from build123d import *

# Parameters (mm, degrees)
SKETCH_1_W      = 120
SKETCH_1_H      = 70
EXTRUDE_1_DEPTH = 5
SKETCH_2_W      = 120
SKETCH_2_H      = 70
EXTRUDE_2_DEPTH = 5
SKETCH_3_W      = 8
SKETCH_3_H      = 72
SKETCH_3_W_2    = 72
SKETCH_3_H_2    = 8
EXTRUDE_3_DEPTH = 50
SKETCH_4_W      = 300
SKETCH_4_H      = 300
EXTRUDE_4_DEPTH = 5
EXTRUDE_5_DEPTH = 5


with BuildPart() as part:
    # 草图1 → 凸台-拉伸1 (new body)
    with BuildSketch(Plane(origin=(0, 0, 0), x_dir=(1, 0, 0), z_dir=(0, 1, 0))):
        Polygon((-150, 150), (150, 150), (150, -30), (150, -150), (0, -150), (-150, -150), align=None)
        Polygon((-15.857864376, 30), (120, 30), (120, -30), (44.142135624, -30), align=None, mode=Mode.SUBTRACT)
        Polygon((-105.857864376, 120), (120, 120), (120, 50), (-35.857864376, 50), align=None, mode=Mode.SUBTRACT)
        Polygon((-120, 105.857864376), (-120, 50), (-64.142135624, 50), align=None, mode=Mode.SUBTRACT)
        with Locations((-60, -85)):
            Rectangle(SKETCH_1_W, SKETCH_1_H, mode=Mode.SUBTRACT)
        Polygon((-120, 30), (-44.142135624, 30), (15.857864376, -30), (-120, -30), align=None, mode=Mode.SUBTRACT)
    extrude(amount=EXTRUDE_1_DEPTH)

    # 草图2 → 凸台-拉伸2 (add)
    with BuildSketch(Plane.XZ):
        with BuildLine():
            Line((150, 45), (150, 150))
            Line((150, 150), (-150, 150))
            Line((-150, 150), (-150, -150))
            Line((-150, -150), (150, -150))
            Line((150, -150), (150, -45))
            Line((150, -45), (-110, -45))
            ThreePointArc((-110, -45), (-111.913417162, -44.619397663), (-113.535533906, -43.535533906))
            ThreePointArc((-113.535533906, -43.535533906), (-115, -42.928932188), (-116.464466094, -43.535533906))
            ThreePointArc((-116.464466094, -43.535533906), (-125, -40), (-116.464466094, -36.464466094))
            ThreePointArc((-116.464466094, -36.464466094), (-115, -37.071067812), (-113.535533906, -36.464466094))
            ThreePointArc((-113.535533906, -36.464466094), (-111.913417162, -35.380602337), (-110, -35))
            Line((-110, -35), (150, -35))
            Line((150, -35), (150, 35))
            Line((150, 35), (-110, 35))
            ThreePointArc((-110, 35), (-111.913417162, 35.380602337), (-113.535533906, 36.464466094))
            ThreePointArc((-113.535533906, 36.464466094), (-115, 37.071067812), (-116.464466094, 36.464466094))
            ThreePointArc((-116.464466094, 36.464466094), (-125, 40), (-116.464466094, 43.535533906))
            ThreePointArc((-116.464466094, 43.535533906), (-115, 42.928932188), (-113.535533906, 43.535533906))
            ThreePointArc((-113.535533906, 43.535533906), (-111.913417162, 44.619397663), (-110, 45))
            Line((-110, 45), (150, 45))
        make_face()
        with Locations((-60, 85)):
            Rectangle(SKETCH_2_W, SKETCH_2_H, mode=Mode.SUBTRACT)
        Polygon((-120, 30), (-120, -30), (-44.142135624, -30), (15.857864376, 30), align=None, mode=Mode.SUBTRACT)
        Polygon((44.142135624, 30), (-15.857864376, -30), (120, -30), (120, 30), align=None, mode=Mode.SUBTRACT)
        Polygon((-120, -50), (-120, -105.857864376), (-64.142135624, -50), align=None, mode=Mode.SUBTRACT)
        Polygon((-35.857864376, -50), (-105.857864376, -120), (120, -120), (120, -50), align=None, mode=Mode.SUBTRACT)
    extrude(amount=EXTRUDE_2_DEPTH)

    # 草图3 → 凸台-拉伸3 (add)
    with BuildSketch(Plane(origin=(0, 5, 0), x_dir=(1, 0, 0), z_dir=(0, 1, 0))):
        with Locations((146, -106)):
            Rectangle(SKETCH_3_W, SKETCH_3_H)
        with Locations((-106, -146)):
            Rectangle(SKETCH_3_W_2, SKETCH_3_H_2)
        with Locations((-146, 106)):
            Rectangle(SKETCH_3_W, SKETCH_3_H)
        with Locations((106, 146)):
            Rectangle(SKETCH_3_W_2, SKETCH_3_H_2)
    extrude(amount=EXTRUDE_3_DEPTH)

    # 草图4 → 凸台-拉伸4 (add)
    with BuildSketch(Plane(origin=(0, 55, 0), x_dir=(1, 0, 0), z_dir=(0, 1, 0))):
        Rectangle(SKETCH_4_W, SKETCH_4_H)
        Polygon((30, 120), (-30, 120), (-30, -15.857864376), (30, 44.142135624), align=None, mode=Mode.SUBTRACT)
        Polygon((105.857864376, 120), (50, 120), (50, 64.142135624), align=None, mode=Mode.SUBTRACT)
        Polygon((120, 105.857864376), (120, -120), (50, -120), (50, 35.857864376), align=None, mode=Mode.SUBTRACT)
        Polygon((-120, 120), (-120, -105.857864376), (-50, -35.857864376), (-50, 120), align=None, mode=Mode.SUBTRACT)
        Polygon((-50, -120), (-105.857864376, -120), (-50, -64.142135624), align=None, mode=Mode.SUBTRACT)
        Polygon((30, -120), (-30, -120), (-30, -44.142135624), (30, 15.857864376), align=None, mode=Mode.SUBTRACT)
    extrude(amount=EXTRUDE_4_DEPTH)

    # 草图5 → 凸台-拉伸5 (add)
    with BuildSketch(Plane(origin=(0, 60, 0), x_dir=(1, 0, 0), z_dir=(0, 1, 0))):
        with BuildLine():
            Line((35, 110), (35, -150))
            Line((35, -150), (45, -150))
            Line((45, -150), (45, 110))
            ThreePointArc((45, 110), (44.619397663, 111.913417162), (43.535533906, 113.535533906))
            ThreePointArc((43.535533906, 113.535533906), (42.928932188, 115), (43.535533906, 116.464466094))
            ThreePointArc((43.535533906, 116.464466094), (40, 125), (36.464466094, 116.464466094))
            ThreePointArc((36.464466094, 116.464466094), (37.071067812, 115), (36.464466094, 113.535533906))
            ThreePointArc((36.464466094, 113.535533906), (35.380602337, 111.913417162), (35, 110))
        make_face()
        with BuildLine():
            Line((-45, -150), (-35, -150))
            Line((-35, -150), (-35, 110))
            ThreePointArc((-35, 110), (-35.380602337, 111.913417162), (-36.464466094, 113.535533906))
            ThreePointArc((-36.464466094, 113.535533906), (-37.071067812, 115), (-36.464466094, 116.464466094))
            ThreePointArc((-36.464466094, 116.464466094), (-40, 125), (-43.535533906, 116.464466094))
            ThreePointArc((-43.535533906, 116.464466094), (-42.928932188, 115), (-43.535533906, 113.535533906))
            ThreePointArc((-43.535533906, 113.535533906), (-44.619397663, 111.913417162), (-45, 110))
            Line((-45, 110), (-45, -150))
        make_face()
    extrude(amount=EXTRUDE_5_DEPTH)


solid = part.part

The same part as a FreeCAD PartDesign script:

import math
import FreeCAD as App
import Part
import Sketcher
from FreeCAD import Vector
Q = App.Units.Quantity

doc = App.newDocument("Part")
body = doc.addObject("PartDesign::Body", "Body")

# Sketch on XZ plane
sketch1 = doc.addObject("Sketcher::SketchObject", "Sketch")
body.addObject(sketch1)
sketch1.AttachmentSupport = (doc.XZ_Plane, [""])
sketch1.MapMode = "FlatFace"
sketch1.addGeometry(Part.LineSegment(Vector(150, -150, 0), Vector(-150, -150, 0)), False)
sketch1.addGeometry(Part.LineSegment(Vector(-150, -150, 0), Vector(-150, 150, 0)), False)
sketch1.addGeometry(Part.LineSegment(Vector(-150, 150, 0), Vector(150, 150, 0)), False)
sketch1.addGeometry(Part.LineSegment(Vector(150, 150, 0), Vector(150, -150, 0)), False)
sketch1.addGeometry(Part.LineSegment(Vector(-120, 120, 0), Vector(-120, 50, 0)), False)
sketch1.addGeometry(Part.LineSegment(Vector(-120, 50, 0), Vector(0, 50, 0)), False)
sketch1.addGeometry(Part.LineSegment(Vector(0, 50, 0), Vector(0, 120, 0)), False)
sketch1.addGeometry(Part.LineSegment(Vector(0, 120, 0), Vector(-120, 120, 0)), False)
sketch1.addGeometry(Part.LineSegment(Vector(-15.857864, -30, 0), Vector(120, -30, 0)), False)
sketch1.addGeometry(Part.LineSegment(Vector(120, -30, 0), Vector(120, 30, 0)), False)
sketch1.addGeometry(Part.LineSegment(Vector(120, 30, 0), Vector(44.142136, 30, 0)), False)
sketch1.addGeometry(Part.LineSegment(Vector(44.142136, 30, 0), Vector(-15.857864, -30, 0)), False)
sketch1.addGeometry(Part.LineSegment(Vector(-105.857864, -120, 0), Vector(120, -120, 0)), False)
sketch1.addGeometry(Part.LineSegment(Vector(120, -120, 0), Vector(120, -50, 0)), False)
sketch1.addGeometry(Part.LineSegment(Vector(120, -50, 0), Vector(-35.857864, -50, 0)), False)
sketch1.addGeometry(Part.LineSegment(Vector(-35.857864, -50, 0), Vector(-105.857864, -120, 0)), False)
sketch1.addGeometry(Part.LineSegment(Vector(-120, -30, 0), Vector(-44.142136, -30, 0)), False)
sketch1.addGeometry(Part.LineSegment(Vector(-44.142136, -30, 0), Vector(15.857864, 30, 0)), False)
sketch1.addGeometry(Part.LineSegment(Vector(15.857864, 30, 0), Vector(-120, 30, 0)), False)
sketch1.addGeometry(Part.LineSegment(Vector(-120, 30, 0), Vector(-120, -30, 0)), False)
sketch1.addGeometry(Part.LineSegment(Vector(-120, -105.857864, 0), Vector(-64.142136, -50, 0)), False)
sketch1.addGeometry(Part.LineSegment(Vector(-64.142136, -50, 0), Vector(-120, -50, 0)), False)
sketch1.addGeometry(Part.LineSegment(Vector(-120, -50, 0), Vector(-120, -105.857864, 0)), False)
sketch1.addConstraint(Sketcher.Constraint("Coincident", 0, 2, 1, 1))
sketch1.addConstraint(Sketcher.Constraint("Coincident", 1, 2, 2, 1))
sketch1.addConstraint(Sketcher.Constraint("Coincident", 2, 2, 3, 1))
sketch1.addConstraint(Sketcher.Constraint("Coincident", 3, 2, 0, 1))
sketch1.addConstraint(Sketcher.Constraint("Coincident", 4, 2, 5, 1))
sketch1.addConstraint(Sketcher.Constraint("Coincident", 5, 2, 6, 1))
sketch1.addConstraint(Sketcher.Constraint("Coincident", 6, 2, 7, 1))
sketch1.addConstraint(Sketcher.Constraint("Coincident", 7, 2, 4, 1))
sketch1.addConstraint(Sketcher.Constraint("Coincident", 8, 2, 9, 1))
sketch1.addConstraint(Sketcher.Constraint("Coincident", 9, 2, 10, 1))
sketch1.addConstraint(Sketcher.Constraint("Coincident", 10, 2, 11, 1))
sketch1.addConstraint(Sketcher.Constraint("Coincident", 11, 2, 8, 1))
sketch1.addConstraint(Sketcher.Constraint("Coincident", 12, 2, 13, 1))
sketch1.addConstraint(Sketcher.Constraint("Coincident", 13, 2, 14, 1))
sketch1.addConstraint(Sketcher.Constraint("Coincident", 14, 2, 15, 1))
sketch1.addConstraint(Sketcher.Constraint("Coincident", 15, 2, 12, 1))
sketch1.addConstraint(Sketcher.Constraint("Coincident", 16, 2, 17, 1))
sketch1.addConstraint(Sketcher.Constraint("Coincident", 17, 2, 18, 1))
sketch1.addConstraint(Sketcher.Constraint("Coincident", 18, 2, 19, 1))
sketch1.addConstraint(Sketcher.Constraint("Coincident", 19, 2, 16, 1))
sketch1.addConstraint(Sketcher.Constraint("Coincident", 20, 2, 21, 1))
sketch1.addConstraint(Sketcher.Constraint("Coincident", 21, 2, 22, 1))
sketch1.addConstraint(Sketcher.Constraint("Coincident", 22, 2, 20, 1))
sketch1.addConstraint(Sketcher.Constraint("Horizontal", 0))
sketch1.addConstraint(Sketcher.Constraint("Vertical", 1))
sketch1.addConstraint(Sketcher.Constraint("Horizontal", 2))
sketch1.addConstraint(Sketcher.Constraint("Vertical", 3))
sketch1.addConstraint(Sketcher.Constraint("Vertical", 4))
sketch1.addConstraint(Sketcher.Constraint("Horizontal", 5))
sketch1.addConstraint(Sketcher.Constraint("Vertical", 6))
sketch1.addConstraint(Sketcher.Constraint("Horizontal", 7))
sketch1.addConstraint(Sketcher.Constraint("Horizontal", 8))
sketch1.addConstraint(Sketcher.Constraint("Vertical", 9))
sketch1.addConstraint(Sketcher.Constraint("Horizontal", 10))
sketch1.addConstraint(Sketcher.Constraint("Horizontal", 12))
sketch1.addConstraint(Sketcher.Constraint("Vertical", 13))
sketch1.addConstraint(Sketcher.Constraint("Horizontal", 14))
sketch1.addConstraint(Sketcher.Constraint("Horizontal", 16))
sketch1.addConstraint(Sketcher.Constraint("Horizontal", 18))
sketch1.addConstraint(Sketcher.Constraint("Vertical", 19))
sketch1.addConstraint(Sketcher.Constraint("Horizontal", 21))
sketch1.addConstraint(Sketcher.Constraint("Vertical", 22))
sketch1.addConstraint(Sketcher.Constraint("Symmetric", 0, 2, 2, 2, -1, 1))
sketch1.addConstraint(Sketcher.Constraint("Symmetric", 7, 2, 12, 2, -1, 1))
sketch1.addConstraint(Sketcher.Constraint("Symmetric", 10, 2, 16, 2, -1, 1))
sketch1.addConstraint(Sketcher.Constraint("Symmetric", 11, 2, 17, 2, -1, 1))
sketch1.addConstraint(Sketcher.Constraint("Symmetric", 9, 2, 18, 2, -2))
sketch1.addConstraint(Sketcher.Constraint("Symmetric", 13, 2, 21, 2, -2))
sketch1.addConstraint(Sketcher.Constraint("PointOnObject", 5, 2, -2))
sketch1.addConstraint(Sketcher.Constraint("Parallel", 11, 15))
sketch1.addConstraint(Sketcher.Constraint("Parallel", 17, 20))
sketch1.addConstraint(Sketcher.Constraint("Vertical", 9, 2, 12, 2))
sketch1.addConstraint(Sketcher.Constraint("Equal", 2, 1))
sketch1.addConstraint(Sketcher.Constraint("Equal", 6, 13))
sketch1.addConstraint(Sketcher.Constraint("Equal", 21, 22))
sketch1.addConstraint(Sketcher.Constraint("DistanceX", 0, 2, 0, 1, Q("300 mm")))
sketch1.addConstraint(Sketcher.Constraint("DistanceX", 5, 1, 5, 2, Q("120 mm")))
sketch1.addConstraint(Sketcher.Constraint("DistanceY", 4, 2, 4, 1, Q("70 mm")))
sketch1.addConstraint(Sketcher.Constraint("DistanceY", 9, 1, 9, 2, Q("60 mm")))
sketch1.addConstraint(Sketcher.Constraint("DistanceY", -1, 1, 4, 2, Q("50 mm")))
sketch1.addConstraint(Sketcher.Constraint("DistanceX", 14, 2, 11, 2, Q("20 mm")))
sketch1.addConstraint(Sketcher.Constraint("DistanceX", 20, 2, 16, 2, Q("20 mm")))
sketch1.addConstraint(Sketcher.Constraint("Distance", 20, Q("78.994949 mm")))
pad1 = doc.addObject("PartDesign::Pad", "Pad")
body.addObject(pad1)
pad1.Profile = sketch1
pad1.Length = 5
pad1.Reversed = True

# Sketch on XZ plane
sketch2 = doc.addObject("Sketcher::SketchObject", "Sketch001")
body.addObject(sketch2)
sketch2.AttachmentSupport = (doc.XZ_Plane, [""])
sketch2.MapMode = "FlatFace"
sketch2.addGeometry(Part.LineSegment(Vector(150, 45, 0), Vector(150, 150, 0)), False)
sketch2.addGeometry(Part.LineSegment(Vector(150, 150, 0), Vector(-150, 150, 0)), False)
sketch2.addGeometry(Part.LineSegment(Vector(-150, 150, 0), Vector(-150, -150, 0)), False)
sketch2.addGeometry(Part.LineSegment(Vector(-150, -150, 0), Vector(150, -150, 0)), False)
sketch2.addGeometry(Part.LineSegment(Vector(150, -150, 0), Vector(150, -45, 0)), False)
sketch2.addGeometry(Part.LineSegment(Vector(150, -45, 0), Vector(-110, -45, 0)), False)
sketch2.addGeometry(Part.ArcOfCircle(Part.Circle(Vector(-110, -40, 0), Vector(0, 0, 1), 5), math.radians(-135), math.radians(-90)), False)
sketch2.addGeometry(Part.ArcOfCircle(Part.Circle(Vector(-115, -45, 0), Vector(0, 0, 1), 2.071068), math.radians(45), math.radians(135)), False)
sketch2.addGeometry(Part.ArcOfCircle(Part.Circle(Vector(-120, -40, 0), Vector(0, 0, 1), 5), math.radians(45), math.radians(315)), False)
sketch2.addGeometry(Part.ArcOfCircle(Part.Circle(Vector(-115, -35, 0), Vector(0, 0, 1), 2.071068), math.radians(-135), math.radians(-45)), False)
sketch2.addGeometry(Part.ArcOfCircle(Part.Circle(Vector(-110, -40, 0), Vector(0, 0, 1), 5), math.radians(90), math.radians(135)), False)
sketch2.addGeometry(Part.LineSegment(Vector(-110, -35, 0), Vector(150, -35, 0)), False)
sketch2.addGeometry(Part.LineSegment(Vector(150, -35, 0), Vector(150, 35, 0)), False)
sketch2.addGeometry(Part.LineSegment(Vector(150, 35, 0), Vector(-110, 35, 0)), False)
sketch2.addGeometry(Part.ArcOfCircle(Part.Circle(Vector(-110, 40, 0), Vector(0, 0, 1), 5), math.radians(-135), math.radians(-90)), False)
sketch2.addGeometry(Part.ArcOfCircle(Part.Circle(Vector(-115, 35, 0), Vector(0, 0, 1), 2.071068), math.radians(45), math.radians(135)), False)
sketch2.addGeometry(Part.ArcOfCircle(Part.Circle(Vector(-120, 40, 0), Vector(0, 0, 1), 5), math.radians(45), math.radians(315)), False)
sketch2.addGeometry(Part.ArcOfCircle(Part.Circle(Vector(-115, 45, 0), Vector(0, 0, 1), 2.071068), math.radians(-135), math.radians(-45)), False)
sketch2.addGeometry(Part.ArcOfCircle(Part.Circle(Vector(-110, 40, 0), Vector(0, 0, 1), 5), math.radians(90), math.radians(135)), False)
sketch2.addGeometry(Part.LineSegment(Vector(-110, 45, 0), Vector(150, 45, 0)), False)
sketch2.addGeometry(Part.LineSegment(Vector(-120, -105.857864, 0), Vector(-120, -50, 0)), False)
sketch2.addGeometry(Part.LineSegment(Vector(-120, -50, 0), Vector(-64.142136, -50, 0)), False)
sketch2.addGeometry(Part.LineSegment(Vector(-64.142136, -50, 0), Vector(-120, -105.857864, 0)), False)
sketch2.addGeometry(Part.LineSegment(Vector(-105.857864, -120, 0), Vector(-35.857864, -50, 0)), False)
sketch2.addGeometry(Part.LineSegment(Vector(-35.857864, -50, 0), Vector(120, -50, 0)), False)
sketch2.addGeometry(Part.LineSegment(Vector(120, -50, 0), Vector(120, -120, 0)), False)
sketch2.addGeometry(Part.LineSegment(Vector(120, -120, 0), Vector(-105.857864, -120, 0)), False)
sketch2.addGeometry(Part.LineSegment(Vector(-120, -30, 0), Vector(-120, 30, 0)), False)
sketch2.addGeometry(Part.LineSegment(Vector(-120, 30, 0), Vector(15.857864, 30, 0)), False)
sketch2.addGeometry(Part.LineSegment(Vector(15.857864, 30, 0), Vector(-44.142136, -30, 0)), False)
sketch2.addGeometry(Part.LineSegment(Vector(-44.142136, -30, 0), Vector(-120, -30, 0)), False)
sketch2.addGeometry(Part.LineSegment(Vector(0, 50, 0), Vector(-120, 50, 0)), False)
sketch2.addGeometry(Part.LineSegment(Vector(-120, 50, 0), Vector(-120, 120, 0)), False)
sketch2.addGeometry(Part.LineSegment(Vector(-120, 120, 0), Vector(0, 120, 0)), False)
sketch2.addGeometry(Part.LineSegment(Vector(0, 120, 0), Vector(0, 50, 0)), False)
sketch2.addGeometry(Part.LineSegment(Vector(-15.857864, -30, 0), Vector(44.142136, 30, 0)), False)
sketch2.addGeometry(Part.LineSegment(Vector(44.142136, 30, 0), Vector(120, 30, 0)), False)
sketch2.addGeometry(Part.LineSegment(Vector(120, 30, 0), Vector(120, -30, 0)), False)
sketch2.addGeometry(Part.LineSegment(Vector(120, -30, 0), Vector(-15.857864, -30, 0)), False)
sketch2.addConstraint(Sketcher.Constraint("Coincident", 0, 2, 1, 1))
sketch2.addConstraint(Sketcher.Constraint("Coincident", 1, 2, 2, 1))
sketch2.addConstraint(Sketcher.Constraint("Coincident", 2, 2, 3, 1))
sketch2.addConstraint(Sketcher.Constraint("Coincident", 3, 2, 4, 1))
sketch2.addConstraint(Sketcher.Constraint("Coincident", 4, 2, 5, 1))
sketch2.addConstraint(Sketcher.Constraint("Tangent", 5, 2, 6, 2))
sketch2.addConstraint(Sketcher.Constraint("Tangent", 6, 1, 7, 1))
sketch2.addConstraint(Sketcher.Constraint("Tangent", 7, 2, 8, 2))
sketch2.addConstraint(Sketcher.Constraint("Tangent", 8, 1, 9, 1))
sketch2.addConstraint(Sketcher.Constraint("Tangent", 9, 2, 10, 2))
sketch2.addConstraint(Sketcher.Constraint("Tangent", 10, 1, 11, 1))
sketch2.addConstraint(Sketcher.Constraint("Coincident", 11, 2, 12, 1))
sketch2.addConstraint(Sketcher.Constraint("Coincident", 12, 2, 13, 1))
sketch2.addConstraint(Sketcher.Constraint("Tangent", 13, 2, 14, 2))
sketch2.addConstraint(Sketcher.Constraint("Tangent", 14, 1, 15, 1))
sketch2.addConstraint(Sketcher.Constraint("Tangent", 15, 2, 16, 2))
sketch2.addConstraint(Sketcher.Constraint("Tangent", 16, 1, 17, 1))
sketch2.addConstraint(Sketcher.Constraint("Tangent", 17, 2, 18, 2))
sketch2.addConstraint(Sketcher.Constraint("Tangent", 18, 1, 19, 1))
sketch2.addConstraint(Sketcher.Constraint("Coincident", 19, 2, 0, 1))
sketch2.addConstraint(Sketcher.Constraint("Coincident", 20, 2, 21, 1))
sketch2.addConstraint(Sketcher.Constraint("Coincident", 21, 2, 22, 1))
sketch2.addConstraint(Sketcher.Constraint("Coincident", 22, 2, 20, 1))
sketch2.addConstraint(Sketcher.Constraint("Coincident", 23, 2, 24, 1))
sketch2.addConstraint(Sketcher.Constraint("Coincident", 24, 2, 25, 1))
sketch2.addConstraint(Sketcher.Constraint("Coincident", 25, 2, 26, 1))
sketch2.addConstraint(Sketcher.Constraint("Coincident", 26, 2, 23, 1))
sketch2.addConstraint(Sketcher.Constraint("Coincident", 27, 2, 28, 1))
sketch2.addConstraint(Sketcher.Constraint("Coincident", 28, 2, 29, 1))
sketch2.addConstraint(Sketcher.Constraint("Coincident", 29, 2, 30, 1))
sketch2.addConstraint(Sketcher.Constraint("Coincident", 30, 2, 27, 1))
sketch2.addConstraint(Sketcher.Constraint("Coincident", 31, 2, 32, 1))
sketch2.addConstraint(Sketcher.Constraint("Coincident", 32, 2, 33, 1))
sketch2.addConstraint(Sketcher.Constraint("Coincident", 33, 2, 34, 1))
sketch2.addConstraint(Sketcher.Constraint("Coincident", 34, 2, 31, 1))
sketch2.addConstraint(Sketcher.Constraint("Coincident", 35, 2, 36, 1))
sketch2.addConstraint(Sketcher.Constraint("Coincident", 36, 2, 37, 1))
sketch2.addConstraint(Sketcher.Constraint("Coincident", 37, 2, 38, 1))
sketch2.addConstraint(Sketcher.Constraint("Coincident", 38, 2, 35, 1))
sketch2.addConstraint(Sketcher.Constraint("Vertical", 0))
sketch2.addConstraint(Sketcher.Constraint("Horizontal", 1))
sketch2.addConstraint(Sketcher.Constraint("Vertical", 2))
sketch2.addConstraint(Sketcher.Constraint("Horizontal", 3))
sketch2.addConstraint(Sketcher.Constraint("Vertical", 4))
sketch2.addConstraint(Sketcher.Constraint("Horizontal", 5))
sketch2.addConstraint(Sketcher.Constraint("Horizontal", 11))
sketch2.addConstraint(Sketcher.Constraint("Vertical", 12))
sketch2.addConstraint(Sketcher.Constraint("Horizontal", 13))
sketch2.addConstraint(Sketcher.Constraint("Horizontal", 19))
sketch2.addConstraint(Sketcher.Constraint("Vertical", 20))
sketch2.addConstraint(Sketcher.Constraint("Horizontal", 21))
sketch2.addConstraint(Sketcher.Constraint("Horizontal", 24))
sketch2.addConstraint(Sketcher.Constraint("Vertical", 25))
sketch2.addConstraint(Sketcher.Constraint("Horizontal", 26))
sketch2.addConstraint(Sketcher.Constraint("Vertical", 27))
sketch2.addConstraint(Sketcher.Constraint("Horizontal", 28))
sketch2.addConstraint(Sketcher.Constraint("Horizontal", 30))
sketch2.addConstraint(Sketcher.Constraint("Horizontal", 31))
sketch2.addConstraint(Sketcher.Constraint("Vertical", 32))
sketch2.addConstraint(Sketcher.Constraint("Horizontal", 33))
sketch2.addConstraint(Sketcher.Constraint("Vertical", 34))
sketch2.addConstraint(Sketcher.Constraint("Horizontal", 36))
sketch2.addConstraint(Sketcher.Constraint("Vertical", 37))
sketch2.addConstraint(Sketcher.Constraint("Horizontal", 38))
sketch2.addConstraint(Sketcher.Constraint("Coincident", 10, 3, 6, 3))
sketch2.addConstraint(Sketcher.Constraint("Coincident", 18, 3, 14, 3))
sketch2.addConstraint(Sketcher.Constraint("Equal", 6, 8))
sketch2.addConstraint(Sketcher.Constraint("Equal", 7, 9))
sketch2.addConstraint(Sketcher.Constraint("Equal", 8, 10))
sketch2.addConstraint(Sketcher.Constraint("Equal", 10, 14))
sketch2.addConstraint(Sketcher.Constraint("Equal", 9, 15))
sketch2.addConstraint(Sketcher.Constraint("Equal", 14, 16))
sketch2.addConstraint(Sketcher.Constraint("Equal", 15, 17))
sketch2.addConstraint(Sketcher.Constraint("Equal", 16, 18))
sketch2.addConstraint(Sketcher.Constraint("Symmetric", 0, 2, 2, 2, -1, 1))
sketch2.addConstraint(Sketcher.Constraint("Symmetric", 24, 2, 31, 2, -1, 1))
sketch2.addConstraint(Sketcher.Constraint("Symmetric", 29, 2, 35, 2, -1, 1))
sketch2.addConstraint(Sketcher.Constraint("Symmetric", 27, 2, 37, 2, -1, 1))
sketch2.addConstraint(Sketcher.Constraint("Symmetric", 20, 2, 24, 2, -2))
sketch2.addConstraint(Sketcher.Constraint("Symmetric", 6, 3, 14, 3, -1))
sketch2.addConstraint(Sketcher.Constraint("Symmetric", 8, 3, 16, 3, -1))
sketch2.addConstraint(Sketcher.Constraint("PointOnObject", 33, 2, -2))
sketch2.addConstraint(Sketcher.Constraint("Parallel", 22, 23))
sketch2.addConstraint(Sketcher.Constraint("Parallel", 23, 29))
sketch2.addConstraint(Sketcher.Constraint("Parallel", 29, 35))
sketch2.addConstraint(Sketcher.Constraint("Horizontal", 6, 3, 8, 3))
sketch2.addConstraint(Sketcher.Constraint("Horizontal", 7, 3, 4, 2))
sketch2.addConstraint(Sketcher.Constraint("Horizontal", 28, 2, 35, 2))
sketch2.addConstraint(Sketcher.Constraint("Vertical", 0, 2, 3, 2))
sketch2.addConstraint(Sketcher.Constraint("Vertical", 4, 2, 11, 2))
sketch2.addConstraint(Sketcher.Constraint("Vertical", 16, 3, 20, 2))
sketch2.addConstraint(Sketcher.Constraint("Vertical", 22, 2, 27, 2))
sketch2.addConstraint(Sketcher.Constraint("Equal", 3, 2))
sketch2.addConstraint(Sketcher.Constraint("Equal", 21, 20))
sketch2.addConstraint(Sketcher.Constraint("Equal", 12, 25))
sketch2.addConstraint(Sketcher.Constraint("Equal", 25, 32))
sketch2.addConstraint(Sketcher.Constraint("Radius", 6, Q("5 mm")))
sketch2.addConstraint(Sketcher.Constraint("DistanceX", 1, 2, 1, 1, Q("300 mm")))
sketch2.addConstraint(Sketcher.Constraint("DistanceX", 5, 2, 5, 1, Q("260 mm")))
sketch2.addConstraint(Sketcher.Constraint("DistanceX", 31, 2, 31, 1, Q("120 mm")))
sketch2.addConstraint(Sketcher.Constraint("DistanceY", 0, 1, 0, 2, Q("105 mm")))
sketch2.addConstraint(Sketcher.Constraint("DistanceY", 27, 1, 27, 2, Q("60 mm")))
sketch2.addConstraint(Sketcher.Constraint("DistanceY", 20, 2, -1, 1, Q("50 mm")))
sketch2.addConstraint(Sketcher.Constraint("DistanceX", 21, 2, 28, 2, Q("80 mm")))
sketch2.addConstraint(Sketcher.Constraint("DistanceX", 23, 2, 38, 2, Q("20 mm")))
sketch2.addConstraint(Sketcher.Constraint("DistanceX", 6, 1, 21, 2, Q("49.393398 mm")))
pad2 = doc.addObject("PartDesign::Pad", "Pad001")
body.addObject(pad2)
pad2.Profile = sketch2
pad2.Length = 5

# Sketch on XZ plane
sketch3 = doc.addObject("Sketcher::SketchObject", "Sketch002")
body.addObject(sketch3)
sketch3.AttachmentSupport = (doc.XZ_Plane, [""])
sketch3.MapMode = "FlatFace"
sketch3.AttachmentOffset = App.Placement(Vector(0, 0, -5), App.Rotation())
sketch3.addGeometry(Part.LineSegment(Vector(142, 70, 0), Vector(142, 142, 0)), False)
sketch3.addGeometry(Part.LineSegment(Vector(142, 142, 0), Vector(150, 142, 0)), False)
sketch3.addGeometry(Part.LineSegment(Vector(150, 142, 0), Vector(150, 70, 0)), False)
sketch3.addGeometry(Part.LineSegment(Vector(150, 70, 0), Vector(142, 70, 0)), False)
sketch3.addGeometry(Part.LineSegment(Vector(-142, 142, 0), Vector(-142, 150, 0)), False)
sketch3.addGeometry(Part.LineSegment(Vector(-142, 150, 0), Vector(-70, 150, 0)), False)
sketch3.addGeometry(Part.LineSegment(Vector(-70, 150, 0), Vector(-70, 142, 0)), False)
sketch3.addGeometry(Part.LineSegment(Vector(-70, 142, 0), Vector(-142, 142, 0)), False)
sketch3.addGeometry(Part.LineSegment(Vector(-150, -142, 0), Vector(-150, -70, 0)), False)
sketch3.addGeometry(Part.LineSegment(Vector(-150, -70, 0), Vector(-142, -70, 0)), False)
sketch3.addGeometry(Part.LineSegment(Vector(-142, -70, 0), Vector(-142, -142, 0)), False)
sketch3.addGeometry(Part.LineSegment(Vector(-142, -142, 0), Vector(-150, -142, 0)), False)
sketch3.addGeometry(Part.LineSegment(Vector(70, -150, 0), Vector(70, -142, 0)), False)
sketch3.addGeometry(Part.LineSegment(Vector(70, -142, 0), Vector(142, -142, 0)), False)
sketch3.addGeometry(Part.LineSegment(Vector(142, -142, 0), Vector(142, -150, 0)), False)
sketch3.addGeometry(Part.LineSegment(Vector(142, -150, 0), Vector(70, -150, 0)), False)
sketch3.addConstraint(Sketcher.Constraint("Coincident", 0, 2, 1, 1))
sketch3.addConstraint(Sketcher.Constraint("Coincident", 1, 2, 2, 1))
sketch3.addConstraint(Sketcher.Constraint("Coincident", 2, 2, 3, 1))
sketch3.addConstraint(Sketcher.Constraint("Coincident", 3, 2, 0, 1))
sketch3.addConstraint(Sketcher.Constraint("Coincident", 4, 2, 5, 1))
sketch3.addConstraint(Sketcher.Constraint("Coincident", 5, 2, 6, 1))
sketch3.addConstraint(Sketcher.Constraint("Coincident", 6, 2, 7, 1))
sketch3.addConstraint(Sketcher.Constraint("Coincident", 7, 2, 4, 1))
sketch3.addConstraint(Sketcher.Constraint("Coincident", 8, 2, 9, 1))
sketch3.addConstraint(Sketcher.Constraint("Coincident", 9, 2, 10, 1))
sketch3.addConstraint(Sketcher.Constraint("Coincident", 10, 2, 11, 1))
sketch3.addConstraint(Sketcher.Constraint("Coincident", 11, 2, 8, 1))
sketch3.addConstraint(Sketcher.Constraint("Coincident", 12, 2, 13, 1))
sketch3.addConstraint(Sketcher.Constraint("Coincident", 13, 2, 14, 1))
sketch3.addConstraint(Sketcher.Constraint("Coincident", 14, 2, 15, 1))
sketch3.addConstraint(Sketcher.Constraint("Coincident", 15, 2, 12, 1))
sketch3.addConstraint(Sketcher.Constraint("Vertical", 0))
sketch3.addConstraint(Sketcher.Constraint("Horizontal", 1))
sketch3.addConstraint(Sketcher.Constraint("Vertical", 2))
sketch3.addConstraint(Sketcher.Constraint("Horizontal", 3))
sketch3.addConstraint(Sketcher.Constraint("Vertical", 4))
sketch3.addConstraint(Sketcher.Constraint("Horizontal", 5))
sketch3.addConstraint(Sketcher.Constraint("Vertical", 6))
sketch3.addConstraint(Sketcher.Constraint("Horizontal", 7))
sketch3.addConstraint(Sketcher.Constraint("Vertical", 8))
sketch3.addConstraint(Sketcher.Constraint("Horizontal", 9))
sketch3.addConstraint(Sketcher.Constraint("Vertical", 10))
sketch3.addConstraint(Sketcher.Constraint("Horizontal", 11))
sketch3.addConstraint(Sketcher.Constraint("Vertical", 12))
sketch3.addConstraint(Sketcher.Constraint("Horizontal", 13))
sketch3.addConstraint(Sketcher.Constraint("Vertical", 14))
sketch3.addConstraint(Sketcher.Constraint("Horizontal", 15))
sketch3.addConstraint(Sketcher.Constraint("Symmetric", 2, 2, 8, 2, -1, 1))
sketch3.addConstraint(Sketcher.Constraint("Symmetric", 0, 2, 10, 2, -1, 1))
sketch3.addConstraint(Sketcher.Constraint("Symmetric", 6, 2, 12, 2, -1, 1))
sketch3.addConstraint(Sketcher.Constraint("Symmetric", 4, 2, 14, 2, -1, 1))
sketch3.addConstraint(Sketcher.Constraint("Symmetric", 0, 2, 7, 2, -2))
sketch3.addConstraint(Sketcher.Constraint("Equal", 15, 0))
sketch3.addConstraint(Sketcher.Constraint("Equal", 11, 4))
sketch3.addConstraint(Sketcher.Constraint("DistanceX", 1, 1, 1, 2, Q("8 mm")))
sketch3.addConstraint(Sketcher.Constraint("DistanceX", 5, 1, 5, 2, Q("72 mm")))
sketch3.addConstraint(Sketcher.Constraint("DistanceX", -1, 1, 0, 2, Q("142 mm")))
sketch3.addConstraint(Sketcher.Constraint("DistanceY", -1, 1, 0, 2, Q("142 mm")))
pad3 = doc.addObject("PartDesign::Pad", "Pad002")
body.addObject(pad3)
pad3.Profile = sketch3
pad3.Length = 50
pad3.Reversed = True

# Sketch on XZ plane
sketch4 = doc.addObject("Sketcher::SketchObject", "Sketch003")
body.addObject(sketch4)
sketch4.AttachmentSupport = (doc.XZ_Plane, [""])
sketch4.MapMode = "FlatFace"
sketch4.AttachmentOffset = App.Placement(Vector(0, 0, -55), App.Rotation())
sketch4.addGeometry(Part.LineSegment(Vector(-150, -150, 0), Vector(-150, 150, 0)), False)
sketch4.addGeometry(Part.LineSegment(Vector(-150, 150, 0), Vector(150, 150, 0)), False)
sketch4.addGeometry(Part.LineSegment(Vector(150, 150, 0), Vector(150, -150, 0)), False)
sketch4.addGeometry(Part.LineSegment(Vector(150, -150, 0), Vector(-150, -150, 0)), False)
sketch4.addGeometry(Part.LineSegment(Vector(-50, 64.142136, 0), Vector(-50, 120, 0)), False)
sketch4.addGeometry(Part.LineSegment(Vector(-50, 120, 0), Vector(-105.857864, 120, 0)), False)
sketch4.addGeometry(Part.LineSegment(Vector(-105.857864, 120, 0), Vector(-50, 64.142136, 0)), False)
sketch4.addGeometry(Part.LineSegment(Vector(30, -15.857864, 0), Vector(30, 120, 0)), False)
sketch4.addGeometry(Part.LineSegment(Vector(30, 120, 0), Vector(-30, 120, 0)), False)
sketch4.addGeometry(Part.LineSegment(Vector(-30, 120, 0), Vector(-30, 44.142136, 0)), False)
sketch4.addGeometry(Part.LineSegment(Vector(-30, 44.142136, 0), Vector(30, -15.857864, 0)), False)
sketch4.addGeometry(Part.LineSegment(Vector(50, -35.857864, 0), Vector(120, -105.857864, 0)), False)
sketch4.addGeometry(Part.LineSegment(Vector(120, -105.857864, 0), Vector(120, 120, 0)), False)
sketch4.addGeometry(Part.LineSegment(Vector(120, 120, 0), Vector(50, 120, 0)), False)
sketch4.addGeometry(Part.LineSegment(Vector(50, 120, 0), Vector(50, -35.857864, 0)), False)
sketch4.addGeometry(Part.LineSegment(Vector(-120, 105.857864, 0), Vector(-120, -120, 0)), False)
sketch4.addGeometry(Part.LineSegment(Vector(-120, -120, 0), Vector(-50, -120, 0)), False)
sketch4.addGeometry(Part.LineSegment(Vector(-50, -120, 0), Vector(-50, 35.857864, 0)), False)
sketch4.addGeometry(Part.LineSegment(Vector(-50, 35.857864, 0), Vector(-120, 105.857864, 0)), False)
sketch4.addGeometry(Part.LineSegment(Vector(-30, -120, 0), Vector(30, -120, 0)), False)
sketch4.addGeometry(Part.LineSegment(Vector(30, -120, 0), Vector(30, -44.142136, 0)), False)
sketch4.addGeometry(Part.LineSegment(Vector(30, -44.142136, 0), Vector(-30, 15.857864, 0)), False)
sketch4.addGeometry(Part.LineSegment(Vector(-30, 15.857864, 0), Vector(-30, -120, 0)), False)
sketch4.addGeometry(Part.LineSegment(Vector(50, -120, 0), Vector(105.857864, -120, 0)), False)
sketch4.addGeometry(Part.LineSegment(Vector(105.857864, -120, 0), Vector(50, -64.142136, 0)), False)
sketch4.addGeometry(Part.LineSegment(Vector(50, -64.142136, 0), Vector(50, -120, 0)), False)
sketch4.addConstraint(Sketcher.Constraint("Coincident", 0, 2, 1, 1))
sketch4.addConstraint(Sketcher.Constraint("Coincident", 1, 2, 2, 1))
sketch4.addConstraint(Sketcher.Constraint("Coincident", 2, 2, 3, 1))
sketch4.addConstraint(Sketcher.Constraint("Coincident", 3, 2, 0, 1))
sketch4.addConstraint(Sketcher.Constraint("Coincident", 4, 2, 5, 1))
sketch4.addConstraint(Sketcher.Constraint("Coincident", 5, 2, 6, 1))
sketch4.addConstraint(Sketcher.Constraint("Coincident", 6, 2, 4, 1))
sketch4.addConstraint(Sketcher.Constraint("Coincident", 7, 2, 8, 1))
sketch4.addConstraint(Sketcher.Constraint("Coincident", 8, 2, 9, 1))
sketch4.addConstraint(Sketcher.Constraint("Coincident", 9, 2, 10, 1))
sketch4.addConstraint(Sketcher.Constraint("Coincident", 10, 2, 7, 1))
sketch4.addConstraint(Sketcher.Constraint("Coincident", 11, 2, 12, 1))
sketch4.addConstraint(Sketcher.Constraint("Coincident", 12, 2, 13, 1))
sketch4.addConstraint(Sketcher.Constraint("Coincident", 13, 2, 14, 1))
sketch4.addConstraint(Sketcher.Constraint("Coincident", 14, 2, 11, 1))
sketch4.addConstraint(Sketcher.Constraint("Coincident", 15, 2, 16, 1))
sketch4.addConstraint(Sketcher.Constraint("Coincident", 16, 2, 17, 1))
sketch4.addConstraint(Sketcher.Constraint("Coincident", 17, 2, 18, 1))
sketch4.addConstraint(Sketcher.Constraint("Coincident", 18, 2, 15, 1))
sketch4.addConstraint(Sketcher.Constraint("Coincident", 19, 2, 20, 1))
sketch4.addConstraint(Sketcher.Constraint("Coincident", 20, 2, 21, 1))
sketch4.addConstraint(Sketcher.Constraint("Coincident", 21, 2, 22, 1))
sketch4.addConstraint(Sketcher.Constraint("Coincident", 22, 2, 19, 1))
sketch4.addConstraint(Sketcher.Constraint("Coincident", 23, 2, 24, 1))
sketch4.addConstraint(Sketcher.Constraint("Coincident", 24, 2, 25, 1))
sketch4.addConstraint(Sketcher.Constraint("Coincident", 25, 2, 23, 1))
sketch4.addConstraint(Sketcher.Constraint("Vertical", 0))
sketch4.addConstraint(Sketcher.Constraint("Horizontal", 1))
sketch4.addConstraint(Sketcher.Constraint("Vertical", 2))
sketch4.addConstraint(Sketcher.Constraint("Horizontal", 3))
sketch4.addConstraint(Sketcher.Constraint("Vertical", 4))
sketch4.addConstraint(Sketcher.Constraint("Horizontal", 5))
sketch4.addConstraint(Sketcher.Constraint("Vertical", 7))
sketch4.addConstraint(Sketcher.Constraint("Horizontal", 8))
sketch4.addConstraint(Sketcher.Constraint("Vertical", 9))
sketch4.addConstraint(Sketcher.Constraint("Vertical", 12))
sketch4.addConstraint(Sketcher.Constraint("Horizontal", 13))
sketch4.addConstraint(Sketcher.Constraint("Vertical", 14))
sketch4.addConstraint(Sketcher.Constraint("Vertical", 15))
sketch4.addConstraint(Sketcher.Constraint("Horizontal", 16))
sketch4.addConstraint(Sketcher.Constraint("Vertical", 17))
sketch4.addConstraint(Sketcher.Constraint("Horizontal", 19))
sketch4.addConstraint(Sketcher.Constraint("Vertical", 20))
sketch4.addConstraint(Sketcher.Constraint("Vertical", 22))
sketch4.addConstraint(Sketcher.Constraint("Horizontal", 23))
sketch4.addConstraint(Sketcher.Constraint("Vertical", 25))
sketch4.addConstraint(Sketcher.Constraint("Symmetric", 0, 2, 2, 2, -1, 1))
sketch4.addConstraint(Sketcher.Constraint("Symmetric", 12, 2, 15, 2, -1, 1))
sketch4.addConstraint(Sketcher.Constraint("Symmetric", 14, 2, 17, 2, -1, 1))
sketch4.addConstraint(Sketcher.Constraint("Symmetric", 8, 2, 19, 2, -1, 1))
sketch4.addConstraint(Sketcher.Constraint("Symmetric", 10, 2, 21, 2, -1, 1))
sketch4.addConstraint(Sketcher.Constraint("Symmetric", 5, 2, 23, 2, -1, 1))
sketch4.addConstraint(Sketcher.Constraint("Symmetric", 6, 2, 24, 2, -1, 1))
sketch4.addConstraint(Sketcher.Constraint("Symmetric", 4, 2, 13, 2, -2))
sketch4.addConstraint(Sketcher.Constraint("Parallel", 6, 10))
sketch4.addConstraint(Sketcher.Constraint("Parallel", 10, 11))
sketch4.addConstraint(Sketcher.Constraint("Parallel", 11, 18))
sketch4.addConstraint(Sketcher.Constraint("Parallel", 18, 21))
sketch4.addConstraint(Sketcher.Constraint("Horizontal", 5, 2, 7, 2))
sketch4.addConstraint(Sketcher.Constraint("Vertical", 10, 2, 19, 2))
sketch4.addConstraint(Sketcher.Constraint("Equal", 3, 0))
sketch4.addConstraint(Sketcher.Constraint("Equal", 23, 4))
sketch4.addConstraint(Sketcher.Constraint("DistanceX", 1, 1, 1, 2, Q("300 mm")))
sketch4.addConstraint(Sketcher.Constraint("DistanceX", 8, 2, 8, 1, Q("60 mm")))
sketch4.addConstraint(Sketcher.Constraint("DistanceX", 13, 2, 13, 1, Q("70 mm")))
sketch4.addConstraint(Sketcher.Constraint("DistanceX", 4, 2, -1, 1, Q("50 mm")))
sketch4.addConstraint(Sketcher.Constraint("DistanceY", -1, 1, 4, 2, Q("120 mm")))
sketch4.addConstraint(Sketcher.Constraint("DistanceY", 9, 2, 6, 2, Q("20 mm")))
sketch4.addConstraint(Sketcher.Constraint("DistanceY", 11, 2, 10, 2, Q("90 mm")))
sketch4.addConstraint(Sketcher.Constraint("Distance", 6, Q("78.994949 mm")))
pad4 = doc.addObject("PartDesign::Pad", "Pad003")
body.addObject(pad4)
pad4.Profile = sketch4
pad4.Length = 5
pad4.Reversed = True

# Sketch on XZ plane
sketch5 = doc.addObject("Sketcher::SketchObject", "Sketch004")
body.addObject(sketch5)
sketch5.AttachmentSupport = (doc.XZ_Plane, [""])
sketch5.MapMode = "FlatFace"
sketch5.AttachmentOffset = App.Placement(Vector(0, 0, -60), App.Rotation())
sketch5.addGeometry(Part.LineSegment(Vector(35, -110, 0), Vector(35, 150, 0)), False)
sketch5.addGeometry(Part.LineSegment(Vector(35, 150, 0), Vector(45, 150, 0)), False)
sketch5.addGeometry(Part.LineSegment(Vector(45, 150, 0), Vector(45, -110, 0)), False)
sketch5.addGeometry(Part.ArcOfCircle(Part.Circle(Vector(40, -110, 0), Vector(0, 0, 1), 5), math.radians(-45), math.radians(0)), False)
sketch5.addGeometry(Part.ArcOfCircle(Part.Circle(Vector(45, -115, 0), Vector(0, 0, 1), 2.071068), math.radians(135), math.radians(225)), False)
sketch5.addGeometry(Part.ArcOfCircle(Part.Circle(Vector(40, -120, 0), Vector(0, 0, 1), 5), math.radians(135), math.radians(405)), False)
sketch5.addGeometry(Part.ArcOfCircle(Part.Circle(Vector(35, -115, 0), Vector(0, 0, 1), 2.071068), math.radians(-45), math.radians(45)), False)
sketch5.addGeometry(Part.ArcOfCircle(Part.Circle(Vector(40, -110, 0), Vector(0, 0, 1), 5), math.radians(180), math.radians(225)), False)
sketch5.addGeometry(Part.LineSegment(Vector(-45, 150, 0), Vector(-35, 150, 0)), False)
sketch5.addGeometry(Part.LineSegment(Vector(-35, 150, 0), Vector(-35, -110, 0)), False)
sketch5.addGeometry(Part.ArcOfCircle(Part.Circle(Vector(-40, -110, 0), Vector(0, 0, 1), 5), math.radians(-45), math.radians(0)), False)
sketch5.addGeometry(Part.ArcOfCircle(Part.Circle(Vector(-35, -115, 0), Vector(0, 0, 1), 2.071068), math.radians(135), math.radians(225)), False)
sketch5.addGeometry(Part.ArcOfCircle(Part.Circle(Vector(-40, -120, 0), Vector(0, 0, 1), 5), math.radians(135), math.radians(405)), False)
sketch5.addGeometry(Part.ArcOfCircle(Part.Circle(Vector(-45, -115, 0), Vector(0, 0, 1), 2.071068), math.radians(-45), math.radians(45)), False)
sketch5.addGeometry(Part.ArcOfCircle(Part.Circle(Vector(-40, -110, 0), Vector(0, 0, 1), 5), math.radians(180), math.radians(225)), False)
sketch5.addGeometry(Part.LineSegment(Vector(-45, -110, 0), Vector(-45, 150, 0)), False)
sketch5.addConstraint(Sketcher.Constraint("Coincident", 0, 2, 1, 1))
sketch5.addConstraint(Sketcher.Constraint("Coincident", 1, 2, 2, 1))
sketch5.addConstraint(Sketcher.Constraint("Tangent", 2, 2, 3, 2))
sketch5.addConstraint(Sketcher.Constraint("Tangent", 3, 1, 4, 1))
sketch5.addConstraint(Sketcher.Constraint("Tangent", 4, 2, 5, 2))
sketch5.addConstraint(Sketcher.Constraint("Tangent", 5, 1, 6, 1))
sketch5.addConstraint(Sketcher.Constraint("Tangent", 6, 2, 7, 2))
sketch5.addConstraint(Sketcher.Constraint("Tangent", 7, 1, 0, 1))
sketch5.addConstraint(Sketcher.Constraint("Coincident", 8, 2, 9, 1))
sketch5.addConstraint(Sketcher.Constraint("Tangent", 9, 2, 10, 2))
sketch5.addConstraint(Sketcher.Constraint("Tangent", 10, 1, 11, 1))
sketch5.addConstraint(Sketcher.Constraint("Tangent", 11, 2, 12, 2))
sketch5.addConstraint(Sketcher.Constraint("Tangent", 12, 1, 13, 1))
sketch5.addConstraint(Sketcher.Constraint("Tangent", 13, 2, 14, 2))
sketch5.addConstraint(Sketcher.Constraint("Tangent", 14, 1, 15, 1))
sketch5.addConstraint(Sketcher.Constraint("Coincident", 15, 2, 8, 1))
sketch5.addConstraint(Sketcher.Constraint("Vertical", 0))
sketch5.addConstraint(Sketcher.Constraint("Horizontal", 1))
sketch5.addConstraint(Sketcher.Constraint("Vertical", 2))
sketch5.addConstraint(Sketcher.Constraint("Horizontal", 8))
sketch5.addConstraint(Sketcher.Constraint("Vertical", 9))
sketch5.addConstraint(Sketcher.Constraint("Vertical", 15))
sketch5.addConstraint(Sketcher.Constraint("Coincident", 7, 3, 3, 3))
sketch5.addConstraint(Sketcher.Constraint("Coincident", 14, 3, 10, 3))
sketch5.addConstraint(Sketcher.Constraint("Equal", 3, 5))
sketch5.addConstraint(Sketcher.Constraint("Equal", 4, 6))
sketch5.addConstraint(Sketcher.Constraint("Equal", 5, 7))
sketch5.addConstraint(Sketcher.Constraint("Equal", 7, 10))
sketch5.addConstraint(Sketcher.Constraint("Equal", 6, 11))
sketch5.addConstraint(Sketcher.Constraint("Equal", 10, 12))
sketch5.addConstraint(Sketcher.Constraint("Equal", 11, 13))
sketch5.addConstraint(Sketcher.Constraint("Equal", 12, 14))
sketch5.addConstraint(Sketcher.Constraint("Symmetric", 3, 3, 10, 3, -2))
sketch5.addConstraint(Sketcher.Constraint("Symmetric", 5, 3, 12, 3, -2))
sketch5.addConstraint(Sketcher.Constraint("Horizontal", 4, 3, 6, 3))
sketch5.addConstraint(Sketcher.Constraint("Horizontal", 1, 2, 8, 2))
sketch5.addConstraint(Sketcher.Constraint("Vertical", 6, 3, 0, 2))
sketch5.addConstraint(Sketcher.Constraint("Radius", 3, Q("5 mm")))
sketch5.addConstraint(Sketcher.Constraint("DistanceY", 0, 1, 0, 2, Q("260 mm")))
sketch5.addConstraint(Sketcher.Constraint("DistanceX", -1, 1, 3, 3, Q("40 mm")))
sketch5.addConstraint(Sketcher.Constraint("DistanceY", 3, 3, -1, 1, Q("110 mm")))
sketch5.addConstraint(Sketcher.Constraint("DistanceY", 4, 3, -1, 1, Q("115 mm")))
pad5 = doc.addObject("PartDesign::Pad", "Pad004")
body.addObject(pad5)
pad5.Profile = sketch5
pad5.Length = 5
pad5.Reversed = True

doc.recompute()
